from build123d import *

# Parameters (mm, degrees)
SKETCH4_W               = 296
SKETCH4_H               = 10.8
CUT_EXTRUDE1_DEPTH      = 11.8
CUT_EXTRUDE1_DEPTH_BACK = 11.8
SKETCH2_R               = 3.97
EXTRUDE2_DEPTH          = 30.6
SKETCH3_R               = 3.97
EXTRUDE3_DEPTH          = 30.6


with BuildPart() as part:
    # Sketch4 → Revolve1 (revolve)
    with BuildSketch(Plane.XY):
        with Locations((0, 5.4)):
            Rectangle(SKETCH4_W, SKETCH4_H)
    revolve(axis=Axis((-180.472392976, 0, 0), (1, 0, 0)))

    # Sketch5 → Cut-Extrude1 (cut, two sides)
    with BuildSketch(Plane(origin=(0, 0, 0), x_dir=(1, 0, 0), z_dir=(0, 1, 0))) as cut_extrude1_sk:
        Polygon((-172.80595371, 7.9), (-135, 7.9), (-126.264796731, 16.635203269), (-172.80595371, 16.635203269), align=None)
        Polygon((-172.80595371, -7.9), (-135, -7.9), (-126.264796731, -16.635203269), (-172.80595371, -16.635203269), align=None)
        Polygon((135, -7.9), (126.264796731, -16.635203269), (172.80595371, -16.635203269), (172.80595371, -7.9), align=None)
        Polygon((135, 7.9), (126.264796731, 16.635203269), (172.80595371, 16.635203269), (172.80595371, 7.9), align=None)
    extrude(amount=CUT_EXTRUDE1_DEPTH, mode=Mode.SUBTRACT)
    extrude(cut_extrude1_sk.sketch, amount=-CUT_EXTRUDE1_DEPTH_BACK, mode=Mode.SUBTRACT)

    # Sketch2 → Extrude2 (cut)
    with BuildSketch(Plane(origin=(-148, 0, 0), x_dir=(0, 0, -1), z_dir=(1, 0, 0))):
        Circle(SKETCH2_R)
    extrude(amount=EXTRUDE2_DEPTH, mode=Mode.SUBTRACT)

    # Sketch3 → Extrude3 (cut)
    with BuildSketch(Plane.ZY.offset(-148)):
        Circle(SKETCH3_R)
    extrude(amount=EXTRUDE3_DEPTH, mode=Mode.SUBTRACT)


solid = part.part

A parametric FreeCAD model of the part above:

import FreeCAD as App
import Part
import Sketcher
Q = App.Units.Quantity

doc = App.newDocument("Part")
body = doc.addObject("PartDesign::Body", "Body")

# Sketch on XY plane
sketch1 = body.newObject("Sketcher::SketchObject", "Sketch")
sketch1.AttachmentSupport = (doc.getObject("XY_Plane"), [""])
sketch1.MapMode = "FlatFace"
sketch1.addGeometry([
    Part.LineSegment(App.Vector(-148, 10.8, 0), App.Vector(-148, 0, 0)),
    Part.LineSegment(App.Vector(-148, 0, 0), App.Vector(148, 0, 0)),
    Part.LineSegment(App.Vector(148, 0, 0), App.Vector(148, 10.8, 0)),
    Part.LineSegment(App.Vector(148, 10.8, 0), App.Vector(-148, 10.8, 0)),
], False)
sketch1.addConstraint([
    Sketcher.Constraint("Coincident", 0, 2, 1, 1),
    Sketcher.Constraint("Coincident", 1, 2, 2, 1),
    Sketcher.Constraint("Coincident", 2, 2, 3, 1),
    Sketcher.Constraint("Coincident", 3, 2, 0, 1),
    Sketcher.Constraint("Vertical", 0),
    Sketcher.Constraint("Horizontal", 1),
    Sketcher.Constraint("Vertical", 2),
    Sketcher.Constraint("Horizontal", 3),
    Sketcher.Constraint("Symmetric", 0, 2, 1, 2, -1, 1),
    Sketcher.Constraint("DistanceX", 1, 1, 1, 2, Q("296 mm")),
    Sketcher.Constraint("DistanceY", 0, 2, 0, 1, Q("10.8 mm")),
])
revolution = body.newObject("PartDesign::Revolution", "Revolution")
revolution.Profile = sketch1
revolution.ReferenceAxis = (sketch1, ["H_Axis"])
revolution.Angle = 360

# Sketch on XZ plane
sketch2 = body.newObject("Sketcher::SketchObject", "Sketch001")
sketch2.AttachmentSupport = (doc.getObject("XZ_Plane"), [""])
sketch2.MapMode = "FlatFace"
sketch2.addGeometry([
    Part.LineSegment(App.Vector(-172.805954, -7.9, 0), App.Vector(-135, -7.9, 0)),  # 0
    Part.LineSegment(App.Vector(-135, -7.9, 0), App.Vector(-126.264797, -16.635203, 0)),  # 1
    Part.LineSegment(App.Vector(-126.264797, -16.635203, 0), App.Vector(-172.805954, -16.635203, 0)),  # 2
    Part.LineSegment(App.Vector(-172.805954, -16.635203, 0), App.Vector(-172.805954, -7.9, 0)),  # 3
    Part.LineSegment(App.Vector(-135, 7.9, 0), App.Vector(-172.805954, 7.9, 0)),  # 4
    Part.LineSegment(App.Vector(-172.805954, 7.9, 0), App.Vector(-172.805954, 16.635203, 0)),  # 5
    Part.LineSegment(App.Vector(-172.805954, 16.635203, 0), App.Vector(-126.264797, 16.635203, 0)),  # 6
    Part.LineSegment(App.Vector(-126.264797, 16.635203, 0), App.Vector(-135, 7.9, 0)),  # 7
    Part.LineSegment(App.Vector(135, 7.9, 0), App.Vector(126.264797, 16.635203, 0)),  # 8
    Part.LineSegment(App.Vector(126.264797, 16.635203, 0), App.Vector(172.805954, 16.635203, 0)),  # 9
    Part.LineSegment(App.Vector(172.805954, 16.635203, 0), App.Vector(172.805954, 7.9, 0)),  # 10
    Part.LineSegment(App.Vector(172.805954, 7.9, 0), App.Vector(135, 7.9, 0)),  # 11
    Part.LineSegment(App.Vector(126.264797, -16.635203, 0), App.Vector(135, -7.9, 0)),  # 12
    Part.LineSegment(App.Vector(135, -7.9, 0), App.Vector(172.805954, -7.9, 0)),  # 13
    Part.LineSegment(App.Vector(172.805954, -7.9, 0), App.Vector(172.805954, -16.635203, 0)),  # 14
    Part.LineSegment(App.Vector(172.805954, -16.635203, 0), App.Vector(126.264797, -16.635203, 0)),  # 15
], False)
sketch2.addConstraint([
    Sketcher.Constraint("Coincident", 0, 2, 1, 1),
    Sketcher.Constraint("Coincident", 1, 2, 2, 1),
    Sketcher.Constraint("Coincident", 2, 2, 3, 1),
    Sketcher.Constraint("Coincident", 3, 2, 0, 1),
    Sketcher.Constraint("Coincident", 4, 2, 5, 1),
    Sketcher.Constraint("Coincident", 5, 2, 6, 1),
    Sketcher.Constraint("Coincident", 6, 2, 7, 1),
    Sketcher.Constraint("Coincident", 7, 2, 4, 1),
    Sketcher.Constraint("Coincident", 8, 2, 9, 1),
    Sketcher.Constraint("Coincident", 9, 2, 10, 1),
    Sketcher.Constraint("Coincident", 10, 2, 11, 1),
    Sketcher.Constraint("Coincident", 11, 2, 8, 1),
    Sketcher.Constraint("Coincident", 12, 2, 13, 1),
    Sketcher.Constraint("Coincident", 13, 2, 14, 1),
    Sketcher.Constraint("Coincident", 14, 2, 15, 1),
    Sketcher.Constraint("Coincident", 15, 2, 12, 1),
    Sketcher.Constraint("Horizontal", 0),
    Sketcher.Constraint("Horizontal", 2),
    Sketcher.Constraint("Vertical", 3),
    Sketcher.Constraint("Horizontal", 4),
    Sketcher.Constraint("Vertical", 5),
    Sketcher.Constraint("Horizontal", 6),
    Sketcher.Constraint("Horizontal", 9),
    Sketcher.Constraint("Vertical", 10),
    Sketcher.Constraint("Horizontal", 11),
    Sketcher.Constraint("Horizontal", 13),
    Sketcher.Constraint("Vertical", 14),
    Sketcher.Constraint("Horizontal", 15),
    Sketcher.Constraint("Symmetric", 1, 2, 8, 2, -1, 1),
    Sketcher.Constraint("Symmetric", 3, 2, 10, 2, -1, 1),
    Sketcher.Constraint("Symmetric", 7, 2, 12, 2, -1, 1),
    Sketcher.Constraint("Symmetric", 5, 2, 14, 2, -1, 1),
    Sketcher.Constraint("Symmetric", 6, 2, 8, 2, -2),
    Sketcher.Constraint("Symmetric", 4, 2, 10, 2, -2),
    Sketcher.Constraint("Perpendicular", 1, 7),
    Sketcher.Constraint("Perpendicular", 7, 8),
    Sketcher.Constraint("Perpendicular", 8, 12),
    Sketcher.Constraint("Vertical", 0, 2, 7, 2),
    Sketcher.Constraint("DistanceX", 0, 2, -1, 1, Q("135 mm")),
    Sketcher.Constraint("DistanceY", 0, 2, -1, 1, Q("7.9 mm")),
    Sketcher.Constraint("DistanceX", 0, 1, 0, 2, Q("37.805954 mm")),
    Sketcher.Constraint("DistanceX", 2, 2, 2, 1, Q("46.541157 mm")),
])
pocket1 = body.newObject("PartDesign::Pocket", "Pocket")
pocket1.Profile = sketch2
pocket1.Type = "ThroughAll"
pocket1.Midplane = True

# Sketch on YZ plane
sketch3 = body.newObject("Sketcher::SketchObject", "Sketch002")
sketch3.AttachmentSupport = (doc.getObject("YZ_Plane"), [""])
sketch3.MapMode = "FlatFace"
sketch3.AttachmentOffset = App.Placement(App.Vector(0, 0, -148), App.Rotation())
sketch3.addGeometry(Part.Circle(App.Vector(0, 0, 0), App.Vector(0, 0, 1), 3.97), False)
sketch3.addConstraint([
    Sketcher.Constraint("Coincident", 0, 3, -1, 1),
    Sketcher.Constraint("Diameter", 0, Q("7.94 mm")),
])
pocket2 = body.newObject("PartDesign::Pocket", "Pocket001")
pocket2.Profile = sketch3
pocket2.Length = 30.6
pocket2.Reversed = True

# Sketch on YZ plane
sketch4 = body.newObject("Sketcher::SketchObject", "Sketch003")
sketch4.AttachmentSupport = (doc.getObject("YZ_Plane"), [""])
sketch4.MapMode = "FlatFace"
sketch4.AttachmentOffset = App.Placement(App.Vector(0, 0, 148), App.Rotation())
sketch4.addGeometry(Part.Circle(App.Vector(0, 0, 0), App.Vector(0, 0, 1), 3.97), False)
sketch4.addConstraint([
    Sketcher.Constraint("Coincident", 0, 3, -1, 1),
    Sketcher.Constraint("Diameter", 0, Q("7.94 mm")),
])
pocket3 = body.newObject("PartDesign::Pocket", "Pocket002")
pocket3.Profile = sketch4
pocket3.Length = 30.6

doc.recompute()
